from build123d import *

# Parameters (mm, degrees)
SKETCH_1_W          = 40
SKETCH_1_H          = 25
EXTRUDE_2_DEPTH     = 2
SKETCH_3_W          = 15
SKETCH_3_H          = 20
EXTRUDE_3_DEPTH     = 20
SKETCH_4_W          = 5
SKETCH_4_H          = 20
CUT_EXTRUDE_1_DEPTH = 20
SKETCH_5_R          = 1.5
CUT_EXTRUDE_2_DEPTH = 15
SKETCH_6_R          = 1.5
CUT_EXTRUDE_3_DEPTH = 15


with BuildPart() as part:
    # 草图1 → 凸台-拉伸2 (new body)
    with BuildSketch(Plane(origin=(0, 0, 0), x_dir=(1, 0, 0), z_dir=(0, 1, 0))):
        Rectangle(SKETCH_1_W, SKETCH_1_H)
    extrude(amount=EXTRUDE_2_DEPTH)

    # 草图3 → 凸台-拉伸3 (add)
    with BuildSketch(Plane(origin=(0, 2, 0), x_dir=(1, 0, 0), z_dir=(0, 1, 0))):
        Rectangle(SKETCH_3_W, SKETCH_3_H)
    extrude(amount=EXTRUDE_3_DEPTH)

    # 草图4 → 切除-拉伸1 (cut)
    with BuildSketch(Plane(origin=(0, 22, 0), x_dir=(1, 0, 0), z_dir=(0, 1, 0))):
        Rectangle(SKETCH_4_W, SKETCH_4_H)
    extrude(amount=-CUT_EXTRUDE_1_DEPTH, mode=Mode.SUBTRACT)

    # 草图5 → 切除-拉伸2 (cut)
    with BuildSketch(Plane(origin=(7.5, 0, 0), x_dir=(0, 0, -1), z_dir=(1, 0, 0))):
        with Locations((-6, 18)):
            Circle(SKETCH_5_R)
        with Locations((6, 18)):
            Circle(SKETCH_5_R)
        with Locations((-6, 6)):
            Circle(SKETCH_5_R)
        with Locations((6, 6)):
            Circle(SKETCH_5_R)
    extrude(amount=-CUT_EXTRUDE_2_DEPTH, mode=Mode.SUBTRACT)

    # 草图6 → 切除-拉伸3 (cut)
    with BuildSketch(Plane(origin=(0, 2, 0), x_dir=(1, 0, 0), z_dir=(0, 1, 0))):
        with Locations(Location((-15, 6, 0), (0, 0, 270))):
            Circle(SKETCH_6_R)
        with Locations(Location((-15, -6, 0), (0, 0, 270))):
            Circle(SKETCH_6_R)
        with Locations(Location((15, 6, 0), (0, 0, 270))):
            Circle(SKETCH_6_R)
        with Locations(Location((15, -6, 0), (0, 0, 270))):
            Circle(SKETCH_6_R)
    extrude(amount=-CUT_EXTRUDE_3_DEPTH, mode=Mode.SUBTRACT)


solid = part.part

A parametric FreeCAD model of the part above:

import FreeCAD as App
import Part
import Sketcher
from FreeCAD import Vector


def add_polygon(sketch, points):
    """Adds a closed chain of lines whose ends are joined by coincident constraints."""
    first, n = sketch.GeometryCount, len(points)
    for a, b in zip(points, points[1:] + points[:1]):
        sketch.addGeometry(Part.LineSegment(App.Vector(*a, 0), App.Vector(*b, 0)), False)
    for i in range(n):
        sketch.addConstraint(Sketcher.Constraint("Coincident", first + i, 2, first + (i + 1) % n, 1))

doc = App.newDocument("Part")
body = doc.addObject("PartDesign::Body", "Body")

# Sketch on XZ plane
sketch1 = doc.addObject("Sketcher::SketchObject", "Sketch")
body.addObject(sketch1)
sketch1.AttachmentSupport = (doc.XZ_Plane, [""])
sketch1.MapMode = "FlatFace"
add_polygon(sketch1, [(-20, -12), (-20, 12), (20, 12), (20, -12)])  # lines 0-3
sketch1.addConstraint(Sketcher.Constraint("Vertical", 0))
sketch1.addConstraint(Sketcher.Constraint("Horizontal", 1))
sketch1.addConstraint(Sketcher.Constraint("Vertical", 2))
sketch1.addConstraint(Sketcher.Constraint("Horizontal", 3))
sketch1.addConstraint(Sketcher.Constraint("Symmetric", 0, 2, 2, 2, -1, 1))
sketch1.addConstraint(Sketcher.Constraint("DistanceX", 1, 1, 1, 2, 40.0))
sketch1.addConstraint(Sketcher.Constraint("DistanceY", 0, 1, 0, 2, 25.0))
pad1 = doc.addObject("PartDesign::Pad", "Pad")
body.addObject(pad1)
pad1.Profile = sketch1
pad1.Length = 2
pad1.Reversed = True

# Sketch on XZ plane
sketch2 = doc.addObject("Sketcher::SketchObject", "Sketch001")
body.addObject(sketch2)
sketch2.AttachmentSupport = (doc.XZ_Plane, [""])
sketch2.MapMode = "FlatFace"
sketch2.AttachmentOffset = App.Placement(Vector(0, 0, -2), App.Rotation())
add_polygon(sketch2, [(-8, -10), (-8, 10), (8, 10), (8, -10)])  # lines 0-3
sketch2.addConstraint(Sketcher.Constraint("Vertical", 0))
sketch2.addConstraint(Sketcher.Constraint("Horizontal", 1))
sketch2.addConstraint(Sketcher.Constraint("Vertical", 2))
sketch2.addConstraint(Sketcher.Constraint("Horizontal", 3))
sketch2.addConstraint(Sketcher.Constraint("Symmetric", 0, 2, 2, 2, -1, 1))
sketch2.addConstraint(Sketcher.Constraint("DistanceX", 1, 1, 1, 2, 15.0))
sketch2.addConstraint(Sketcher.Constraint("DistanceY", 0, 1, 0, 2, 20.0))
pad2 = doc.addObject("PartDesign::Pad", "Pad001")
body.addObject(pad2)
pad2.Profile = sketch2
pad2.Length = 20
pad2.Reversed = True

# Sketch on XZ plane
sketch3 = doc.addObject("Sketcher::SketchObject", "Sketch002")
body.addObject(sketch3)
sketch3.AttachmentSupport = (doc.XZ_Plane, [""])
sketch3.MapMode = "FlatFace"
sketch3.AttachmentOffset = App.Placement(Vector(0, 0, -22), App.Rotation())
add_polygon(sketch3, [(-2, -10), (-2, 10), (2, 10), (2, -10)])  # lines 0-3
sketch3.addConstraint(Sketcher.Constraint("Vertical", 0))
sketch3.addConstraint(Sketcher.Constraint("Horizontal", 1))
sketch3.addConstraint(Sketcher.Constraint("Vertical", 2))
sketch3.addConstraint(Sketcher.Constraint("Horizontal", 3))
sketch3.addConstraint(Sketcher.Constraint("Symmetric", 0, 2, 2, 2, -1, 1))
sketch3.addConstraint(Sketcher.Constraint("DistanceX", 1, 1, 1, 2, 5.0))
sketch3.addConstraint(Sketcher.Constraint("DistanceY", 0, 1, 0, 2, 20.0))
pocket1 = doc.addObject("PartDesign::Pocket", "Pocket")
body.addObject(pocket1)
pocket1.Profile = sketch3
pocket1.Length = 20
pocket1.Reversed = True

# Sketch on YZ plane
sketch4 = doc.addObject("Sketcher::SketchObject", "Sketch003")
body.addObject(sketch4)
sketch4.AttachmentSupport = (doc.YZ_Plane, [""])
sketch4.MapMode = "FlatFace"
sketch4.AttachmentOffset = App.Placement(Vector(0, 0, 7.5), App.Rotation())
sketch4.addGeometry(Part.Circle(Vector(18, 6, 0), Vector(0, 0, 1), 1.5), False)
sketch4.addGeometry(Part.Circle(Vector(18, -6, 0), Vector(0, 0, 1), 1.5), False)
sketch4.addGeometry(Part.Circle(Vector(6, 6, 0), Vector(0, 0, 1), 1.5), False)
sketch4.addGeometry(Part.Circle(Vector(6, -6, 0), Vector(0, 0, 1), 1.5), False)
sketch4.addConstraint(Sketcher.Constraint("Equal", 0, 1))
sketch4.addConstraint(Sketcher.Constraint("Equal", 1, 2))
sketch4.addConstraint(Sketcher.Constraint("Equal", 2, 3))
sketch4.addConstraint(Sketcher.Constraint("Symmetric", 0, 3, 1, 3, -1))
sketch4.addConstraint(Sketcher.Constraint("Symmetric", 2, 3, 3, 3, -1))
sketch4.addConstraint(Sketcher.Constraint("Horizontal", 0, 3, 2, 3))
sketch4.addConstraint(Sketcher.Constraint("Diameter", 0, 3.0))
sketch4.addConstraint(Sketcher.Constraint("DistanceX", -1, 1, 0, 3, 18.0))
sketch4.addConstraint(Sketcher.Constraint("DistanceY", -1, 1, 0, 3, 6.0))
sketch4.addConstraint(Sketcher.Constraint("DistanceX", -1, 1, 2, 3, 6.0))
pocket2 = doc.addObject("PartDesign::Pocket", "Pocket001")
body.addObject(pocket2)
pocket2.Profile = sketch4
pocket2.Length = 15

# Sketch on XZ plane
sketch5 = doc.addObject("Sketcher::SketchObject", "Sketch004")
body.addObject(sketch5)
sketch5.AttachmentSupport = (doc.XZ_Plane, [""])
sketch5.MapMode = "FlatFace"
sketch5.AttachmentOffset = App.Placement(Vector(0, 0, -2), App.Rotation())
sketch5.addGeometry(Part.Circle(Vector(-15, -6, 0), Vector(0, 0, 1), 1.5), False)
sketch5.addGeometry(Part.Circle(Vector(-15, 6, 0), Vector(0, 0, 1), 1.5), False)
sketch5.addGeometry(Part.Circle(Vector(15, -6, 0), Vector(0, 0, 1), 1.5), False)
sketch5.addGeometry(Part.Circle(Vector(15, 6, 0), Vector(0, 0, 1), 1.5), False)
sketch5.addConstraint(Sketcher.Constraint("Equal", 0, 1))
sketch5.addConstraint(Sketcher.Constraint("Equal", 1, 2))
sketch5.addConstraint(Sketcher.Constraint("Equal", 2, 3))
sketch5.addConstraint(Sketcher.Constraint("Symmetric", 1, 3, 2, 3, -1, 1))
sketch5.addConstraint(Sketcher.Constraint("Symmetric", 0, 3, 3, 3, -1, 1))
sketch5.addConstraint(Sketcher.Constraint("Symmetric", 0, 3, 2, 3, -2))
sketch5.addConstraint(Sketcher.Constraint("Diameter", 0, 3.0))
sketch5.addConstraint(Sketcher.Constraint("DistanceX", 0, 3, -1, 1, 15.0))
sketch5.addConstraint(Sketcher.Constraint("DistanceY", 0, 3, -1, 1, 6.0))
pocket3 = doc.addObject("PartDesign::Pocket", "Pocket002")
body.addObject(pocket3)
pocket3.Profile = sketch5
pocket3.Length = 15
pocket3.Reversed = True

doc.recompute()
